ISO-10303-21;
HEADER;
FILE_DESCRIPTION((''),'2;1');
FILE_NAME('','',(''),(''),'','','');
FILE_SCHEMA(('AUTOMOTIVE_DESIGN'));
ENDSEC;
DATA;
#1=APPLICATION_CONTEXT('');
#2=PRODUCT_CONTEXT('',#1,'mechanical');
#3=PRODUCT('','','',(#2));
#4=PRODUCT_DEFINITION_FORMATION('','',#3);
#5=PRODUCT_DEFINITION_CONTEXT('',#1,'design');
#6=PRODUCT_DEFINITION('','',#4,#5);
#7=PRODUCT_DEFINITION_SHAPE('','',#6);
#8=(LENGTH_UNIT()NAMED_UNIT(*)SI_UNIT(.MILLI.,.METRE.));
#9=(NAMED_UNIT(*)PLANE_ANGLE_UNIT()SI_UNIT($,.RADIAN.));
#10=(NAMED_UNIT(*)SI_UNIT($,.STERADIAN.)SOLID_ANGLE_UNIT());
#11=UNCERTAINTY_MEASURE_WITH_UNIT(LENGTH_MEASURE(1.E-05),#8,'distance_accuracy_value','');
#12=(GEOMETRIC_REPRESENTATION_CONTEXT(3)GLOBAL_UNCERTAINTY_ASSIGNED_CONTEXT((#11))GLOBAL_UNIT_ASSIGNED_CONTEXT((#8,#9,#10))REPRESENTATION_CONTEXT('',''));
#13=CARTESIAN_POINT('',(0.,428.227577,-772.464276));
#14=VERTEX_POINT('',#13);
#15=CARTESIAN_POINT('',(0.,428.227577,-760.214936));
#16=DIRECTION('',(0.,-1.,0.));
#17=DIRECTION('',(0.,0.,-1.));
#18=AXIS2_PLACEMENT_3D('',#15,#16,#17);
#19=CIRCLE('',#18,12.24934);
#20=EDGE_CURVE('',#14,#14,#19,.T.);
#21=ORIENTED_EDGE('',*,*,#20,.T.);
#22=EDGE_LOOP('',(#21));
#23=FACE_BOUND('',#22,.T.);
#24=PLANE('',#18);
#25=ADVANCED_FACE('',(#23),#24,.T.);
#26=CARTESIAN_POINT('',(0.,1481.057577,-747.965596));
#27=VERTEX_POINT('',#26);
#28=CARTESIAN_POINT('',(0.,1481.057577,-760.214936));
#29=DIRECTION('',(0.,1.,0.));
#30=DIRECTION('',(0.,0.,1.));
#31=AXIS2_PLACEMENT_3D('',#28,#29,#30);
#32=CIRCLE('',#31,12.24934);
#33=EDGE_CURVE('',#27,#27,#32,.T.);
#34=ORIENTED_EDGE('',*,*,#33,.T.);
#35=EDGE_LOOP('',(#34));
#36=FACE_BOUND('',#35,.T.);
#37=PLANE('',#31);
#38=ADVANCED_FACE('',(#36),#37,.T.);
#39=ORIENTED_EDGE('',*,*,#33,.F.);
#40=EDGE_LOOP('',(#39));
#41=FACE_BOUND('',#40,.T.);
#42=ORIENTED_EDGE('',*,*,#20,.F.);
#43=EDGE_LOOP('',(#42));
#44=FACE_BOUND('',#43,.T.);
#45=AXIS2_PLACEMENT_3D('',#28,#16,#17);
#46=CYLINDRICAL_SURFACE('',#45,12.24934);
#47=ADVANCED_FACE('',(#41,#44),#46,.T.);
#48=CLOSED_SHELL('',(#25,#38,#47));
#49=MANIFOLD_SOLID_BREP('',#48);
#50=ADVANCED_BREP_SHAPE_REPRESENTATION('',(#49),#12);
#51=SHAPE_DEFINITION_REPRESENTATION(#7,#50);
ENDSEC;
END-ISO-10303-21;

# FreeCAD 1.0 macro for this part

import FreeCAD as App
import Part
import Sketcher

V = App.Vector

doc = App.newDocument("Part")
params = doc.addObject("Spreadsheet::Sheet", "Params")
for row, (alias, value) in enumerate([
    ("pad1_length", "56.25 in"),
    ("pocket1_length", "14.8 in"),
], start=1):
    params.set(f"A{row}", alias)
    params.set(f"B{row}", "=" + value)
    params.setAlias(f"B{row}", alias)

body = doc.addObject("PartDesign::Body", "Body")

# Sketch on XZ plane
sketch1 = body.newObject("Sketcher::SketchObject", "Sketch")
sketch1.AttachmentSupport = (doc.getObject("XZ_Plane"), [""])
sketch1.MapMode = "FlatFace"
sketch1.AttachmentOffset = App.Placement(V(0, 0, -52.307577), App.Rotation())
sketch1.addGeometry(Part.Circle(V(0, -760.214936, 0), V(0, 0, 1), 12.24934), False)
sketch1.addConstraint(Sketcher.Constraint("PointOnObject", 0, 3, -2))
sketch1.addConstraint(Sketcher.Constraint("Diameter", 0, 24.49868))
sketch1.addConstraint(Sketcher.Constraint("DistanceY", 0, 3, -1, 1, 760.214936))
pad1 = body.newObject("PartDesign::Pad", "Pad")
pad1.Profile = sketch1
pad1.setExpression("Length", "Params.pad1_length")
pad1.Reversed = True

# Sketch on XZ plane
sketch2 = body.newObject("Sketcher::SketchObject", "Sketch001")
sketch2.AttachmentSupport = (doc.getObject("XZ_Plane"), [""])
sketch2.MapMode = "FlatFace"
sketch2.AttachmentOffset = App.Placement(V(0, 0, -52.307577), App.Rotation())
sketch2.addGeometry(Part.Circle(V(0, -760.214936, 0), V(0, 0, 1), 12.24934), False)
sketch2.addConstraint(Sketcher.Constraint("PointOnObject", 0, 3, -2))
sketch2.addConstraint(Sketcher.Constraint("Diameter", 0, 24.49868))
sketch2.addConstraint(Sketcher.Constraint("DistanceY", 0, 3, -1, 1, 760.214936))
pocket1 = body.newObject("PartDesign::Pocket", "Pocket")
pocket1.Profile = sketch2
pocket1.setExpression("Length", "Params.pocket1_length")

doc.recompute()
